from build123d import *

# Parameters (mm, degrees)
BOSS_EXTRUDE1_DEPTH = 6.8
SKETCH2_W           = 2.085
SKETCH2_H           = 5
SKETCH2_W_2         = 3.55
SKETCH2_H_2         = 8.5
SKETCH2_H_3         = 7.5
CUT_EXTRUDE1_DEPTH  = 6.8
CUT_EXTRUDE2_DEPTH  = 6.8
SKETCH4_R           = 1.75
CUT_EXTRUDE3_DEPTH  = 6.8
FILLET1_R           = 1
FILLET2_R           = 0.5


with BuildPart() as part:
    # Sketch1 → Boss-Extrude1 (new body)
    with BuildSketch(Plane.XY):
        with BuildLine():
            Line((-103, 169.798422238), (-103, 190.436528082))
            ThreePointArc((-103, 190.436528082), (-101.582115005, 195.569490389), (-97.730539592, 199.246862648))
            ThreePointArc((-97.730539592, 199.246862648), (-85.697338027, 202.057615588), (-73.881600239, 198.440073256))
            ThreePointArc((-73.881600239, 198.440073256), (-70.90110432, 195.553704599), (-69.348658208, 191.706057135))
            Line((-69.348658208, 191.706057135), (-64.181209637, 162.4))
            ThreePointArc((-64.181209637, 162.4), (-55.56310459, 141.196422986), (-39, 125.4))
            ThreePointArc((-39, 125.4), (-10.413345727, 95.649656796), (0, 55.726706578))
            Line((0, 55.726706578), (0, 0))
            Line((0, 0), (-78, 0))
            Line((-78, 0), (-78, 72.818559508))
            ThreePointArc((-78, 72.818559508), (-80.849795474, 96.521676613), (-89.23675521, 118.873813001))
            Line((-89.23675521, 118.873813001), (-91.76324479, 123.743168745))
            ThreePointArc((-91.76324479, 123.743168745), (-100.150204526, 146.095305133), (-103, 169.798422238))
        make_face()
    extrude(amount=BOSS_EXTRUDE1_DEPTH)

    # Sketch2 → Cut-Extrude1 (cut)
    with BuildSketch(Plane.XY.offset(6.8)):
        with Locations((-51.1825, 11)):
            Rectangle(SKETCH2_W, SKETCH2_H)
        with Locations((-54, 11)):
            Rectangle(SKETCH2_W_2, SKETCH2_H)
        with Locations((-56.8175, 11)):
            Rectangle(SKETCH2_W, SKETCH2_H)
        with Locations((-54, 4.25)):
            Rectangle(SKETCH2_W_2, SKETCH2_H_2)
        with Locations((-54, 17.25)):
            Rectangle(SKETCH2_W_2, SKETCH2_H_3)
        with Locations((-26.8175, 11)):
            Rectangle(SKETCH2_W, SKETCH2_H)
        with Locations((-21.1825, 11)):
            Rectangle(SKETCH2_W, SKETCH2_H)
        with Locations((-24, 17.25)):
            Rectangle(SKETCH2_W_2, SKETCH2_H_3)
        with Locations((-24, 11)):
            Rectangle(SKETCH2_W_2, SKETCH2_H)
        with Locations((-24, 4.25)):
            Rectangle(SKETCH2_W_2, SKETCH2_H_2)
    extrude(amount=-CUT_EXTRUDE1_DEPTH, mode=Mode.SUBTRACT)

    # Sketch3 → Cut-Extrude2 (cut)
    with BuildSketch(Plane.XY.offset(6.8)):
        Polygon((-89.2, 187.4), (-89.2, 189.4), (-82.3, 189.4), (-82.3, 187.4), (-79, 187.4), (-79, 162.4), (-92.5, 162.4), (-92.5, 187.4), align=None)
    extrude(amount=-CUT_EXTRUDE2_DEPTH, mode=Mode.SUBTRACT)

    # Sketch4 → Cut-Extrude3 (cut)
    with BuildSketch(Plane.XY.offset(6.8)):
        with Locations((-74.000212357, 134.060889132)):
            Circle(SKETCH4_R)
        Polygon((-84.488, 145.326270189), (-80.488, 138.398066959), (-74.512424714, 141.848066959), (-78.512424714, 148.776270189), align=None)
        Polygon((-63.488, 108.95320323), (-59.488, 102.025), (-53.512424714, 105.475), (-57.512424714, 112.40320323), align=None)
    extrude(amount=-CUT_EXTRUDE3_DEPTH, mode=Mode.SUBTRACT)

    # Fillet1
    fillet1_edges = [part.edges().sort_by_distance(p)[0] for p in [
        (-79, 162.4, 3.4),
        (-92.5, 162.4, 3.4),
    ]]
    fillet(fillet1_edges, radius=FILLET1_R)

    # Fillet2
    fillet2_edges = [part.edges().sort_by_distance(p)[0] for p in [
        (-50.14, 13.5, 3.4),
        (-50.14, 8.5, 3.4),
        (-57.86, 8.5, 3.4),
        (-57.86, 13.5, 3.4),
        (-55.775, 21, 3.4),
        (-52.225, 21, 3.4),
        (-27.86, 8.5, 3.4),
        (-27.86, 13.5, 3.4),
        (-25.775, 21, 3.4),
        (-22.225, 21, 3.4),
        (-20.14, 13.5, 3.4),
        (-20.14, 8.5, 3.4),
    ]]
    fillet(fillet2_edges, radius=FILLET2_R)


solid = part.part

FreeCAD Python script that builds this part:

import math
import FreeCAD as App
import Part
import Sketcher
Q = App.Units.Quantity


def edges_at(feature, points):
    """Names of the edges that pass closest to the given points."""
    edges = feature.Shape.Edges
    near = lambda p: min(range(len(edges)), key=lambda i: edges[i].distToShape(Part.Vertex(*p))[0])
    return sorted({f"Edge{near(p) + 1}" for p in points})

doc = App.newDocument("Part")
body = doc.addObject("PartDesign::Body", "Body")

sketch1 = body.newObject("Sketcher::SketchObject", "Sketch")
sketch1.AttachmentSupport = (doc.getObject("XY_Plane"), [""])
sketch1.MapMode = "FlatFace"
sketch1.addGeometry(Part.LineSegment(App.Vector(-103, 190, 0), App.Vector(-103, 170, 0)), False)
sketch1.addGeometry(Part.ArcOfCircle(Part.Circle(App.Vector(-3, 170, 0), App.Vector(0, 0, 1), 100), math.radians(-180), math.radians(-153)), False)
sketch1.addGeometry(Part.LineSegment(App.Vector(-92, 124, 0), App.Vector(-89, 119, 0)), False)
sketch1.addGeometry(Part.ArcOfCircle(Part.Circle(App.Vector(-178, 73, 0), App.Vector(0, 0, 1), 100), math.radians(0), math.radians(27)), False)
sketch1.addGeometry(Part.LineSegment(App.Vector(-78, 73, 0), App.Vector(-78, 0, 0)), False)
sketch1.addGeometry(Part.LineSegment(App.Vector(-78, 0, 0), App.Vector(0, 0, 0)), False)
sketch1.addGeometry(Part.LineSegment(App.Vector(0, 0, 0), App.Vector(0, 56, 0)), False)
sketch1.addGeometry(Part.ArcOfCircle(Part.Circle(App.Vector(-82, 56, 0), App.Vector(0, 0, 1), 82), math.radians(0), math.radians(58)), False)
sketch1.addGeometry(Part.ArcOfCircle(Part.Circle(App.Vector(-10, 172, 0), App.Vector(0, 0, 1), 55), math.radians(-170), math.radians(-122)), False)
sketch1.addGeometry(Part.LineSegment(App.Vector(-64, 162, 0), App.Vector(-69, 192, 0)), False)
sketch1.addGeometry(Part.ArcOfCircle(Part.Circle(App.Vector(-79, 190, 0), App.Vector(0, 0, 1), 10), math.radians(10), math.radians(58)), False)
sketch1.addGeometry(Part.ArcOfCircle(Part.Circle(App.Vector(-86, 178, 0), App.Vector(0, 0, 1), 24), math.radians(58), math.radians(118)), False)
sketch1.addGeometry(Part.ArcOfCircle(Part.Circle(App.Vector(-93, 190, 0), App.Vector(0, 0, 1), 10), math.radians(118), math.radians(180)), False)
sketch1.addConstraint(Sketcher.Constraint("Tangent", 0, 2, 1, 1))
sketch1.addConstraint(Sketcher.Constraint("Tangent", 1, 2, 2, 1))
sketch1.addConstraint(Sketcher.Constraint("Tangent", 2, 2, 3, 2))
sketch1.addConstraint(Sketcher.Constraint("Tangent", 3, 1, 4, 1))
sketch1.addConstraint(Sketcher.Constraint("Coincident", 4, 2, 5, 1))
sketch1.addConstraint(Sketcher.Constraint("Coincident", 5, 2, 6, 1))
sketch1.addConstraint(Sketcher.Constraint("Tangent", 6, 2, 7, 1))
sketch1.addConstraint(Sketcher.Constraint("Tangent", 7, 2, 8, 2))
sketch1.addConstraint(Sketcher.Constraint("Tangent", 8, 1, 9, 1))
sketch1.addConstraint(Sketcher.Constraint("Tangent", 9, 2, 10, 1))
sketch1.addConstraint(Sketcher.Constraint("Tangent", 10, 2, 11, 1))
sketch1.addConstraint(Sketcher.Constraint("Tangent", 11, 2, 12, 1))
sketch1.addConstraint(Sketcher.Constraint("Tangent", 12, 2, 0, 1))
sketch1.addConstraint(Sketcher.Constraint("Vertical", 0))
sketch1.addConstraint(Sketcher.Constraint("Vertical", 4))
sketch1.addConstraint(Sketcher.Constraint("Horizontal", 5))
sketch1.addConstraint(Sketcher.Constraint("Vertical", 6))
sketch1.addConstraint(Sketcher.Constraint("Coincident", 5, 2, -1, 1))
sketch1.addConstraint(Sketcher.Constraint("Equal", 1, 3))
sketch1.addConstraint(Sketcher.Constraint("Equal", 10, 12))
sketch1.addConstraint(Sketcher.Constraint("Radius", 1, Q("100 mm")))
sketch1.addConstraint(Sketcher.Constraint("Radius", 10, Q("10 mm")))
sketch1.addConstraint(Sketcher.Constraint("DistanceX", 5, 1, 5, 2, Q("78 mm")))
sketch1.addConstraint(Sketcher.Constraint("Angle", 9, Q("100 deg")))
sketch1.addConstraint(Sketcher.Constraint("DistanceX", 1, 3, -1, 1, Q("3 mm")))
sketch1.addConstraint(Sketcher.Constraint("DistanceX", 7, 2, -1, 1, Q("39 mm")))
sketch1.addConstraint(Sketcher.Constraint("DistanceY", 7, 2, 8, 1, Q("37 mm")))
sketch1.addConstraint(Sketcher.Constraint("DistanceX", 11, 3, -1, 1, Q("86.5 mm")))
sketch1.addConstraint(Sketcher.Constraint("DistanceY", -1, 1, 7, 2, Q("125.4 mm")))
sketch1.addConstraint(Sketcher.Constraint("Radius", 7, Q("81.735485 mm")))
sketch1.addConstraint(Sketcher.Constraint("Radius", 11, Q("23.740504 mm")))
sketch1.addConstraint(Sketcher.Constraint("DistanceY", 4, 2, 4, 1, Q("72.81856 mm")))
sketch1.addConstraint(Sketcher.Constraint("DistanceX", 10, 2, -1, 1, Q("73.8816 mm")))
sketch1.addConstraint(Sketcher.Constraint("Distance", 2, Q("5.485779 mm")))
pad1 = body.newObject("PartDesign::Pad", "Pad")
pad1.Profile = sketch1
pad1.Length = 6.8

sketch2 = body.newObject("Sketcher::SketchObject", "Sketch001")
sketch2.AttachmentSupport = (doc.getObject("XY_Plane"), [""])
sketch2.MapMode = "FlatFace"
sketch2.AttachmentOffset = App.Placement(App.Vector(0, 0, 6.8), App.Rotation())
sketch2.addGeometry(Part.LineSegment(App.Vector(-50.1, 8.5, 0), App.Vector(-50.1, 13.5, 0)), False)
sketch2.addGeometry(Part.LineSegment(App.Vector(-50.1, 13.5, 0), App.Vector(-52.2, 13.5, 0)), False)
sketch2.addGeometry(Part.LineSegment(App.Vector(-52.2, 13.5, 0), App.Vector(-52.2, 21, 0)), False)
sketch2.addGeometry(Part.LineSegment(App.Vector(-52.2, 21, 0), App.Vector(-55.8, 21, 0)), False)
sketch2.addGeometry(Part.LineSegment(App.Vector(-55.8, 21, 0), App.Vector(-55.8, 13.5, 0)), False)
sketch2.addGeometry(Part.LineSegment(App.Vector(-55.8, 13.5, 0), App.Vector(-57.9, 13.5, 0)), False)
sketch2.addGeometry(Part.LineSegment(App.Vector(-57.9, 13.5, 0), App.Vector(-57.9, 8.5, 0)), False)
sketch2.addGeometry(Part.LineSegment(App.Vector(-57.9, 8.5, 0), App.Vector(-55.8, 8.5, 0)), False)
sketch2.addGeometry(Part.LineSegment(App.Vector(-55.8, 8.5, 0), App.Vector(-55.8, 0, 0)), False)
sketch2.addGeometry(Part.LineSegment(App.Vector(-55.8, 0, 0), App.Vector(-52.2, 0, 0)), False)
sketch2.addGeometry(Part.LineSegment(App.Vector(-52.2, 0, 0), App.Vector(-52.2, 8.5, 0)), False)
sketch2.addGeometry(Part.LineSegment(App.Vector(-52.2, 8.5, 0), App.Vector(-50.1, 8.5, 0)), False)
sketch2.addGeometry(Part.LineSegment(App.Vector(-27.9, 13.5, 0), App.Vector(-27.9, 8.5, 0)), False)
sketch2.addGeometry(Part.LineSegment(App.Vector(-27.9, 8.5, 0), App.Vector(-25.8, 8.5, 0)), False)
sketch2.addGeometry(Part.LineSegment(App.Vector(-25.8, 8.5, 0), App.Vector(-25.8, 0, 0)), False)
sketch2.addGeometry(Part.LineSegment(App.Vector(-25.8, 0, 0), App.Vector(-22.2, 0, 0)), False)
sketch2.addGeometry(Part.LineSegment(App.Vector(-22.2, 0, 0), App.Vector(-22.2, 8.5, 0)), False)
sketch2.addGeometry(Part.LineSegment(App.Vector(-22.2, 8.5, 0), App.Vector(-20.1, 8.5, 0)), False)
sketch2.addGeometry(Part.LineSegment(App.Vector(-20.1, 8.5, 0), App.Vector(-20.1, 13.5, 0)), False)
sketch2.addGeometry(Part.LineSegment(App.Vector(-20.1, 13.5, 0), App.Vector(-22.2, 13.5, 0)), False)
sketch2.addGeometry(Part.LineSegment(App.Vector(-22.2, 13.5, 0), App.Vector(-22.2, 21, 0)), False)
sketch2.addGeometry(Part.LineSegment(App.Vector(-22.2, 21, 0), App.Vector(-25.8, 21, 0)), False)
sketch2.addGeometry(Part.LineSegment(App.Vector(-25.8, 21, 0), App.Vector(-25.8, 13.5, 0)), False)
sketch2.addGeometry(Part.LineSegment(App.Vector(-25.8, 13.5, 0), App.Vector(-27.9, 13.5, 0)), False)
sketch2.addConstraint(Sketcher.Constraint("Coincident", 0, 2, 1, 1))
sketch2.addConstraint(Sketcher.Constraint("Coincident", 1, 2, 2, 1))
sketch2.addConstraint(Sketcher.Constraint("Coincident", 2, 2, 3, 1))
sketch2.addConstraint(Sketcher.Constraint("Coincident", 3, 2, 4, 1))
sketch2.addConstraint(Sketcher.Constraint("Coincident", 4, 2, 5, 1))
sketch2.addConstraint(Sketcher.Constraint("Coincident", 5, 2, 6, 1))
sketch2.addConstraint(Sketcher.Constraint("Coincident", 6, 2, 7, 1))
sketch2.addConstraint(Sketcher.Constraint("Coincident", 7, 2, 8, 1))
sketch2.addConstraint(Sketcher.Constraint("Coincident", 8, 2, 9, 1))
sketch2.addConstraint(Sketcher.Constraint("Coincident", 9, 2, 10, 1))
sketch2.addConstraint(Sketcher.Constraint("Coincident", 10, 2, 11, 1))
sketch2.addConstraint(Sketcher.Constraint("Coincident", 11, 2, 0, 1))
sketch2.addConstraint(Sketcher.Constraint("Coincident", 12, 2, 13, 1))
sketch2.addConstraint(Sketcher.Constraint("Coincident", 13, 2, 14, 1))
sketch2.addConstraint(Sketcher.Constraint("Coincident", 14, 2, 15, 1))
sketch2.addConstraint(Sketcher.Constraint("Coincident", 15, 2, 16, 1))
sketch2.addConstraint(Sketcher.Constraint("Coincident", 16, 2, 17, 1))
sketch2.addConstraint(Sketcher.Constraint("Coincident", 17, 2, 18, 1))
sketch2.addConstraint(Sketcher.Constraint("Coincident", 18, 2, 19, 1))
sketch2.addConstraint(Sketcher.Constraint("Coincident", 19, 2, 20, 1))
sketch2.addConstraint(Sketcher.Constraint("Coincident", 20, 2, 21, 1))
sketch2.addConstraint(Sketcher.Constraint("Coincident", 21, 2, 22, 1))
sketch2.addConstraint(Sketcher.Constraint("Coincident", 22, 2, 23, 1))
sketch2.addConstraint(Sketcher.Constraint("Coincident", 23, 2, 12, 1))
sketch2.addConstraint(Sketcher.Constraint("Vertical", 0))
sketch2.addConstraint(Sketcher.Constraint("Horizontal", 1))
sketch2.addConstraint(Sketcher.Constraint("Vertical", 2))
sketch2.addConstraint(Sketcher.Constraint("Horizontal", 3))
sketch2.addConstraint(Sketcher.Constraint("Vertical", 4))
sketch2.addConstraint(Sketcher.Constraint("Horizontal", 5))
sketch2.addConstraint(Sketcher.Constraint("Vertical", 6))
sketch2.addConstraint(Sketcher.Constraint("Horizontal", 7))
sketch2.addConstraint(Sketcher.Constraint("Vertical", 8))
sketch2.addConstraint(Sketcher.Constraint("Horizontal", 9))
sketch2.addConstraint(Sketcher.Constraint("Vertical", 10))
sketch2.addConstraint(Sketcher.Constraint("Horizontal", 11))
sketch2.addConstraint(Sketcher.Constraint("Vertical", 12))
sketch2.addConstraint(Sketcher.Constraint("Horizontal", 13))
sketch2.addConstraint(Sketcher.Constraint("Vertical", 14))
sketch2.addConstraint(Sketcher.Constraint("Horizontal", 15))
sketch2.addConstraint(Sketcher.Constraint("Vertical", 16))
sketch2.addConstraint(Sketcher.Constraint("Horizontal", 17))
sketch2.addConstraint(Sketcher.Constraint("Vertical", 18))
sketch2.addConstraint(Sketcher.Constraint("Horizontal", 19))
sketch2.addConstraint(Sketcher.Constraint("Vertical", 20))
sketch2.addConstraint(Sketcher.Constraint("Horizontal", 21))
sketch2.addConstraint(Sketcher.Constraint("Vertical", 22))
sketch2.addConstraint(Sketcher.Constraint("Horizontal", 23))
sketch2.addConstraint(Sketcher.Constraint("PointOnObject", 8, 2, -1))
sketch2.addConstraint(Sketcher.Constraint("PointOnObject", 14, 2, -1))
sketch2.addConstraint(Sketcher.Constraint("Horizontal", 1, 2, 4, 2))
sketch2.addConstraint(Sketcher.Constraint("Horizontal", 7, 2, 10, 2))
sketch2.addConstraint(Sketcher.Constraint("Horizontal", 11, 2, 12, 2))
sketch2.addConstraint(Sketcher.Constraint("Horizontal", 13, 2, 16, 2))
sketch2.addConstraint(Sketcher.Constraint("Horizontal", 5, 2, 18, 2))
sketch2.addConstraint(Sketcher.Constraint("Horizontal", 3, 2, 20, 2))
sketch2.addConstraint(Sketcher.Constraint("Horizontal", 19, 2, 22, 2))
sketch2.addConstraint(Sketcher.Constraint("Vertical", 4, 2, 7, 2))
sketch2.addConstraint(Sketcher.Constraint("Vertical", 2, 2, 9, 2))
sketch2.addConstraint(Sketcher.Constraint("Vertical", 16, 2, 19, 2))
sketch2.addConstraint(Sketcher.Constraint("Vertical", 14, 2, 21, 2))
sketch2.addConstraint(Sketcher.Constraint("Equal", 1, 5))
sketch2.addConstraint(Sketcher.Constraint("Equal", 11, 13))
sketch2.addConstraint(Sketcher.Constraint("Equal", 9, 15))
sketch2.addConstraint(Sketcher.Constraint("Equal", 13, 17))
sketch2.addConstraint(Sketcher.Constraint("DistanceY", 0, 1, 0, 2, Q("5 mm")))
sketch2.addConstraint(Sketcher.Constraint("DistanceY", 2, 1, 2, 2, Q("7.5 mm")))
sketch2.addConstraint(Sketcher.Constraint("DistanceY", 8, 2, 8, 1, Q("8.5 mm")))
sketch2.addConstraint(Sketcher.Constraint("DistanceX", 9, 2, 15, 2, Q("30 mm")))
sketch2.addConstraint(Sketcher.Constraint("DistanceX", 3, 2, 3, 1, Q("3.55 mm")))
sketch2.addConstraint(Sketcher.Constraint("DistanceX", 1, 2, 1, 1, Q("2.085 mm")))
sketch2.addConstraint(Sketcher.Constraint("DistanceX", 0, 2, -1, 1, Q("50.14 mm")))
pocket1 = body.newObject("PartDesign::Pocket", "Pocket")
pocket1.Profile = sketch2
pocket1.Length = 6.8

sketch3 = body.newObject("Sketcher::SketchObject", "Sketch002")
sketch3.AttachmentSupport = (doc.getObject("XY_Plane"), [""])
sketch3.MapMode = "FlatFace"
sketch3.AttachmentOffset = App.Placement(App.Vector(0, 0, 6.8), App.Rotation())
sketch3.addGeometry(Part.LineSegment(App.Vector(-89.2, 189.4, 0), App.Vector(-89.2, 187.4, 0)), False)
sketch3.addGeometry(Part.LineSegment(App.Vector(-89.2, 187.4, 0), App.Vector(-92.5, 187.4, 0)), False)
sketch3.addGeometry(Part.LineSegment(App.Vector(-92.5, 187.4, 0), App.Vector(-92.5, 162.4, 0)), False)
sketch3.addGeometry(Part.LineSegment(App.Vector(-92.5, 162.4, 0), App.Vector(-79, 162.4, 0)), False)
sketch3.addGeometry(Part.LineSegment(App.Vector(-79, 162.4, 0), App.Vector(-79, 187.4, 0)), False)
sketch3.addGeometry(Part.LineSegment(App.Vector(-79, 187.4, 0), App.Vector(-82.3, 187.4, 0)), False)
sketch3.addGeometry(Part.LineSegment(App.Vector(-82.3, 187.4, 0), App.Vector(-82.3, 189.4, 0)), False)
sketch3.addGeometry(Part.LineSegment(App.Vector(-82.3, 189.4, 0), App.Vector(-89.2, 189.4, 0)), False)
sketch3.addConstraint(Sketcher.Constraint("Coincident", 0, 2, 1, 1))
sketch3.addConstraint(Sketcher.Constraint("Coincident", 1, 2, 2, 1))
sketch3.addConstraint(Sketcher.Constraint("Coincident", 2, 2, 3, 1))
sketch3.addConstraint(Sketcher.Constraint("Coincident", 3, 2, 4, 1))
sketch3.addConstraint(Sketcher.Constraint("Coincident", 4, 2, 5, 1))
sketch3.addConstraint(Sketcher.Constraint("Coincident", 5, 2, 6, 1))
sketch3.addConstraint(Sketcher.Constraint("Coincident", 6, 2, 7, 1))
sketch3.addConstraint(Sketcher.Constraint("Coincident", 7, 2, 0, 1))
sketch3.addConstraint(Sketcher.Constraint("Vertical", 0))
sketch3.addConstraint(Sketcher.Constraint("Horizontal", 1))
sketch3.addConstraint(Sketcher.Constraint("Vertical", 2))
sketch3.addConstraint(Sketcher.Constraint("Horizontal", 3))
sketch3.addConstraint(Sketcher.Constraint("Vertical", 4))
sketch3.addConstraint(Sketcher.Constraint("Horizontal", 5))
sketch3.addConstraint(Sketcher.Constraint("Vertical", 6))
sketch3.addConstraint(Sketcher.Constraint("Horizontal", 7))
sketch3.addConstraint(Sketcher.Constraint("Horizontal", 1, 2, 4, 2))
sketch3.addConstraint(Sketcher.Constraint("Equal", 1, 5))
sketch3.addConstraint(Sketcher.Constraint("DistanceY", 0, 2, 0, 1, Q("2 mm")))
sketch3.addConstraint(Sketcher.Constraint("DistanceY", 2, 2, 2, 1, Q("25 mm")))
sketch3.addConstraint(Sketcher.Constraint("DistanceX", 1, 2, 1, 1, Q("3.3 mm")))
sketch3.addConstraint(Sketcher.Constraint("DistanceX", 3, 1, 3, 2, Q("13.5 mm")))
sketch3.addConstraint(Sketcher.Constraint("DistanceX", 3, 2, -1, 1, Q("79 mm")))
sketch3.addConstraint(Sketcher.Constraint("DistanceY", -1, 1, 0, 2, Q("187.4 mm")))
pocket2 = body.newObject("PartDesign::Pocket", "Pocket001")
pocket2.Profile = sketch3
pocket2.Length = 6.8

sketch4 = body.newObject("Sketcher::SketchObject", "Sketch003")
sketch4.AttachmentSupport = (doc.getObject("XY_Plane"), [""])
sketch4.MapMode = "FlatFace"
sketch4.AttachmentOffset = App.Placement(App.Vector(0, 0, 6.8), App.Rotation())
sketch4.addGeometry(Part.Circle(App.Vector(-74, 134.1, 0), App.Vector(0, 0, 1), 1.8), False)
sketch4.addGeometry(Part.LineSegment(App.Vector(-84.5, 145.3, 0), App.Vector(-80.5, 138.4, 0)), False)
sketch4.addGeometry(Part.LineSegment(App.Vector(-80.5, 138.4, 0), App.Vector(-74.5, 141.8, 0)), False)
sketch4.addGeometry(Part.LineSegment(App.Vector(-74.5, 141.8, 0), App.Vector(-78.5, 148.8, 0)), False)
sketch4.addGeometry(Part.LineSegment(App.Vector(-78.5, 148.8, 0), App.Vector(-84.5, 145.3, 0)), False)
sketch4.addGeometry(Part.LineSegment(App.Vector(-63.5, 109, 0), App.Vector(-59.5, 102, 0)), False)
sketch4.addGeometry(Part.LineSegment(App.Vector(-59.5, 102, 0), App.Vector(-53.5, 105.5, 0)), False)
sketch4.addGeometry(Part.LineSegment(App.Vector(-53.5, 105.5, 0), App.Vector(-57.5, 112.4, 0)), False)
sketch4.addGeometry(Part.LineSegment(App.Vector(-57.5, 112.4, 0), App.Vector(-63.5, 109, 0)), False)
sketch4.addConstraint(Sketcher.Constraint("Coincident", 1, 2, 2, 1))
sketch4.addConstraint(Sketcher.Constraint("Coincident", 2, 2, 3, 1))
sketch4.addConstraint(Sketcher.Constraint("Coincident", 3, 2, 4, 1))
sketch4.addConstraint(Sketcher.Constraint("Coincident", 4, 2, 1, 1))
sketch4.addConstraint(Sketcher.Constraint("Coincident", 5, 2, 6, 1))
sketch4.addConstraint(Sketcher.Constraint("Coincident", 6, 2, 7, 1))
sketch4.addConstraint(Sketcher.Constraint("Coincident", 7, 2, 8, 1))
sketch4.addConstraint(Sketcher.Constraint("Coincident", 8, 2, 5, 1))
sketch4.addConstraint(Sketcher.Constraint("Perpendicular", 1, 2))
sketch4.addConstraint(Sketcher.Constraint("Perpendicular", 2, 3))
sketch4.addConstraint(Sketcher.Constraint("Perpendicular", 3, 4))
sketch4.addConstraint(Sketcher.Constraint("Perpendicular", 4, 5))
sketch4.addConstraint(Sketcher.Constraint("Perpendicular", 5, 6))
sketch4.addConstraint(Sketcher.Constraint("Perpendicular", 6, 7))
sketch4.addConstraint(Sketcher.Constraint("Perpendicular", 7, 8))
sketch4.addConstraint(Sketcher.Constraint("Equal", 3, 5))
sketch4.addConstraint(Sketcher.Constraint("Equal", 4, 6))
sketch4.addConstraint(Sketcher.Constraint("Diameter", 0, Q("3.5 mm")))
sketch4.addConstraint(Sketcher.Constraint("Angle", 1, Q("-60 deg")))
sketch4.addConstraint(Sketcher.Constraint("Distance", 1, Q("8 mm")))
sketch4.addConstraint(Sketcher.Constraint("DistanceX", 1, 2, 5, 2, Q("21 mm")))
sketch4.addConstraint(Sketcher.Constraint("Distance", 2, Q("6.9 mm")))
sketch4.addConstraint(Sketcher.Constraint("DistanceX", 1, 2, -1, 1, Q("80.488 mm")))
sketch4.addConstraint(Sketcher.Constraint("DistanceY", -1, 1, 5, 2, Q("102.025 mm")))
sketch4.addConstraint(Sketcher.Constraint("DistanceY", -1, 1, 0, 3, Q("134.060889 mm")))
sketch4.addConstraint(Sketcher.Constraint("DistanceY", -1, 1, 3, 2, Q("148.77627 mm")))
sketch4.addConstraint(Sketcher.Constraint("DistanceX", 0, 3, -1, 1, Q("74.000212 mm")))
pocket3 = body.newObject("PartDesign::Pocket", "Pocket002")
pocket3.Profile = sketch4
pocket3.Length = 6.8
doc.recompute()

fillet = body.newObject("PartDesign::Fillet", "Fillet")
fillet.Base = (pocket3, edges_at(pocket3, [(-79, 162.4, 3.4), (-92.5, 162.4, 3.4)]))
fillet.Radius = 1
doc.recompute()

fillet2 = body.newObject("PartDesign::Fillet", "Fillet001")
fillet2.Base = (fillet, edges_at(fillet, [
    (-50.14, 13.5, 3.4),
    (-50.14, 8.5, 3.4),
    (-57.86, 8.5, 3.4),
    (-57.86, 13.5, 3.4),
    (-55.775, 21, 3.4),
    (-52.225, 21, 3.4),
    (-27.86, 8.5, 3.4),
    (-27.86, 13.5, 3.4),
    (-25.775, 21, 3.4),
    (-22.225, 21, 3.4),
    (-20.14, 13.5, 3.4),
    (-20.14, 8.5, 3.4),
]))
fillet2.Radius = 0.5

doc.recompute()
